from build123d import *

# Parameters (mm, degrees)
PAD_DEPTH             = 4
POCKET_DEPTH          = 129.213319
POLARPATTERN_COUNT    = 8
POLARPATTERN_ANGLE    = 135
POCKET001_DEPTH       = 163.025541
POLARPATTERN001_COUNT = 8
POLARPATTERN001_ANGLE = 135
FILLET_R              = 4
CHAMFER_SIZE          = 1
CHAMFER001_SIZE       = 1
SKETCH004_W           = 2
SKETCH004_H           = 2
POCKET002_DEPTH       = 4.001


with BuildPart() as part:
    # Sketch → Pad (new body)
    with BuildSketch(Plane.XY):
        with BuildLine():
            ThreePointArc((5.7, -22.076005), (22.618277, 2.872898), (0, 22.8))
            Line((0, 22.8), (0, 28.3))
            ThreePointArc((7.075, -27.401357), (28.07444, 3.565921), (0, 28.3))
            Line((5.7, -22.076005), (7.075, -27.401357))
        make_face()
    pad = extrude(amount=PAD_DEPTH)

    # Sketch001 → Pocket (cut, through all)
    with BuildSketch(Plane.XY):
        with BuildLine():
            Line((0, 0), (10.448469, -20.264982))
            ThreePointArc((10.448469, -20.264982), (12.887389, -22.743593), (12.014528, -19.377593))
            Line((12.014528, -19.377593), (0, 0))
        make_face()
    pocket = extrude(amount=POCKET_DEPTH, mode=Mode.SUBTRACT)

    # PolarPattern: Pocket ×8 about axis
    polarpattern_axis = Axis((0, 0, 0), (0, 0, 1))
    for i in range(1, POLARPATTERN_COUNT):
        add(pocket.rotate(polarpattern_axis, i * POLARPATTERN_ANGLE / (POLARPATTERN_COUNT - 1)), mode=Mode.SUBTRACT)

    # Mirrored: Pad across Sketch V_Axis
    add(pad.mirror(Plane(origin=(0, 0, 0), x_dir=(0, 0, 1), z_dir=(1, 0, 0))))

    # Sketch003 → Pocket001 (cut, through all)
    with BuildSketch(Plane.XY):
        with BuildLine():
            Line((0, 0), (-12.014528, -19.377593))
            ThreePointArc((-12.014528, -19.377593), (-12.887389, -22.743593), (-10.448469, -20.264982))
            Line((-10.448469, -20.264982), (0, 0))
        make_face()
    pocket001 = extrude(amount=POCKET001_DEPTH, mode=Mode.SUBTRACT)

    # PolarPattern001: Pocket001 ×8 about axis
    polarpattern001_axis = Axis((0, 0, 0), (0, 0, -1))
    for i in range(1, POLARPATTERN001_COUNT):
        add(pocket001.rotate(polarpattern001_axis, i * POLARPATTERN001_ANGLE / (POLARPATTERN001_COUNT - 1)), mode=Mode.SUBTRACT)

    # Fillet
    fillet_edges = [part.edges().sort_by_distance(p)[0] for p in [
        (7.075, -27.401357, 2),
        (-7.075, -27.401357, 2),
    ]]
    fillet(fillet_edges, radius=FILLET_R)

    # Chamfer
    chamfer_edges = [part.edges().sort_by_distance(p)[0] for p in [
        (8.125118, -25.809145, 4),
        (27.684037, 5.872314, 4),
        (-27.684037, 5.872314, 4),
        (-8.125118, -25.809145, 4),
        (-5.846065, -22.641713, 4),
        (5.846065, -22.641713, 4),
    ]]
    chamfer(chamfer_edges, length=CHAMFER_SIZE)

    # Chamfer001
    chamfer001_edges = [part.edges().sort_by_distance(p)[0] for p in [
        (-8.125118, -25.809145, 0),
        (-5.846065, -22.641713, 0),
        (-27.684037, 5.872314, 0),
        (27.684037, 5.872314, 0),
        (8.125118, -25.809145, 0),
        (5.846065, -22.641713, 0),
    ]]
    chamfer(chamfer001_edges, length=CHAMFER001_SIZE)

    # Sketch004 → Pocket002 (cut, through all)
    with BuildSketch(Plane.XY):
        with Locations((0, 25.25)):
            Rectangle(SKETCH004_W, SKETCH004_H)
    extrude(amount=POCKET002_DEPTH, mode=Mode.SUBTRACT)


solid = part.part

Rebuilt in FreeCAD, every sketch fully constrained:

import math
import FreeCAD as App
import Part
import Sketcher
from FreeCAD import Vector
Q = App.Units.Quantity


def edges_at(feature, points):
    """Names of the edges that pass closest to the given points."""
    edges = feature.Shape.Edges
    near = lambda p: min(range(len(edges)), key=lambda i: edges[i].distToShape(Part.Vertex(*p))[0])
    return sorted({f"Edge{near(p) + 1}" for p in points})

doc = App.newDocument("Part")
body = doc.addObject("PartDesign::Body", "Body")

# Sketch on XY plane
sketch1 = body.newObject("Sketcher::SketchObject", "Sketch")
sketch1.AttachmentSupport = (doc.getObject("XY_Plane"), [""])
sketch1.MapMode = "FlatFace"
sketch1.addGeometry([
    Part.ArcOfCircle(Part.Circle(Vector(0, 0, 0), Vector(0, 0, 1), 23), math.radians(-76), math.radians(90)),
    Part.LineSegment(Vector(6, -22, 0), Vector(7, -27, 0)),
    Part.ArcOfCircle(Part.Circle(Vector(0, 0, 0), Vector(0, 0, 1), 28), math.radians(-76), math.radians(90)),
    Part.LineSegment(Vector(0, 28, 0), Vector(0, 23, 0)),
], False)
sketch1.addConstraint([
    Sketcher.Constraint("Coincident", 0, 1, 1, 1),
    Sketcher.Constraint("Coincident", 1, 2, 2, 1),
    Sketcher.Constraint("Coincident", 2, 2, 3, 1),
    Sketcher.Constraint("Coincident", 3, 2, 0, 2),
    Sketcher.Constraint("Vertical", 3),
    Sketcher.Constraint("Coincident", 0, 3, -1, 1),
    Sketcher.Constraint("Coincident", 2, 3, -1, 1),
    Sketcher.Constraint("PointOnObject", 2, 2, -2),
    Sketcher.Constraint("Radius", 0, Q("22.8 mm")),
    Sketcher.Constraint("Radius", 2, Q("28.3 mm")),
    Sketcher.Constraint("DistanceX", -1, 1, 0, 1, Q("5.7 mm")),
    Sketcher.Constraint("DistanceX", -1, 1, 1, 2, Q("7.075 mm")),
])
pad1 = body.newObject("PartDesign::Pad", "Pad")
pad1.Profile = sketch1
pad1.Length = 4

# Sketch on XY plane
sketch2 = body.newObject("Sketcher::SketchObject", "Sketch001")
sketch2.AttachmentSupport = (doc.getObject("XY_Plane"), [""])
sketch2.MapMode = "FlatFace"
sketch2.addGeometry([
    Part.LineSegment(Vector(0, 0, 0), Vector(10.4, -20.3, 0)),
    Part.ArcOfCircle(Part.Circle(Vector(12, -21.2, 0), Vector(0, 0, 1), 1.8), math.radians(150), math.radians(450)),
    Part.LineSegment(Vector(12, -19.4, 0), Vector(0, 0, 0)),
], False)
sketch2.addConstraint([
    Sketcher.Constraint("Coincident", 0, 2, 1, 1),
    Sketcher.Constraint("Coincident", 1, 2, 2, 1),
    Sketcher.Constraint("Coincident", 2, 2, 0, 1),
    Sketcher.Constraint("Coincident", 2, 2, -1, 1),
    Sketcher.Constraint("Equal", 0, 2),
    Sketcher.Constraint("Radius", 1, Q("1.8 mm")),
    Sketcher.Constraint("DistanceX", -1, 1, 1, 3, Q("12 mm")),
    Sketcher.Constraint("Distance", 0, Q("22.8 mm")),
    Sketcher.Constraint("DistanceX", -1, 1, 0, 2, Q("10.448469 mm")),
])
pocket1 = body.newObject("PartDesign::Pocket", "Pocket")
pocket1.Profile = sketch2
pocket1.Type = "ThroughAll"
pocket1.Reversed = True
doc.recompute()

polarpattern = body.newObject("PartDesign::PolarPattern", "PolarPattern")
polarpattern.Originals = [pocket1]
polarpattern.Axis = (doc.getObject("Z_Axis"), [""])
polarpattern.Angle = 135
polarpattern.Occurrences = 8
body.Tip = polarpattern
doc.recompute()

mirrored = body.newObject("PartDesign::Mirrored", "Mirrored")
mirrored.Originals = [pad1]
mirrored.MirrorPlane = (doc.getObject("YZ_Plane"), [""])
body.Tip = mirrored

# Sketch on XY plane
sketch3 = body.newObject("Sketcher::SketchObject", "Sketch002")
sketch3.AttachmentSupport = (doc.getObject("XY_Plane"), [""])
sketch3.MapMode = "FlatFace"
sketch3.addGeometry([
    Part.LineSegment(Vector(0, 0, 0), Vector(-12, -19.4, 0)),
    Part.ArcOfCircle(Part.Circle(Vector(-12, -21.2, 0), Vector(0, 0, 1), 1.8), math.radians(90), math.radians(390)),
    Part.LineSegment(Vector(-10.4, -20.3, 0), Vector(0, 0, 0)),
], False)
sketch3.addConstraint([
    Sketcher.Constraint("Coincident", 0, 2, 1, 1),
    Sketcher.Constraint("Coincident", 1, 2, 2, 1),
    Sketcher.Constraint("Coincident", 2, 2, 0, 1),
    Sketcher.Constraint("Coincident", 2, 2, -1, 1),
    Sketcher.Constraint("Equal", 0, 2),
    Sketcher.Constraint("Radius", 1, Q("1.8 mm")),
    Sketcher.Constraint("DistanceX", 1, 3, -1, 1, Q("12 mm")),
    Sketcher.Constraint("Distance", 0, Q("22.8 mm")),
    Sketcher.Constraint("DistanceX", 1, 2, -1, 1, Q("10.448469 mm")),
])
pocket2 = body.newObject("PartDesign::Pocket", "Pocket001")
pocket2.Profile = sketch3
pocket2.Type = "ThroughAll"
pocket2.Reversed = True
doc.recompute()

polarpattern2 = body.newObject("PartDesign::PolarPattern", "PolarPattern001")
polarpattern2.Originals = [pocket2]
polarpattern2.Axis = (doc.getObject("Z_Axis"), [""])
polarpattern2.Angle = 135
polarpattern2.Occurrences = 8
polarpattern2.Reversed = True
body.Tip = polarpattern2
doc.recompute()

fillet = body.newObject("PartDesign::Fillet", "Fillet")
fillet.Base = (polarpattern2, edges_at(polarpattern2, [(7.075, -27.401, 2), (-7.075, -27.401, 2)]))
fillet.Radius = 4
doc.recompute()

chamfer = body.newObject("PartDesign::Chamfer", "Chamfer")
chamfer.Base = (fillet, edges_at(fillet, [
    (8.125, -25.809, 4),
    (27.684, 5.872, 4),
    (-27.684, 5.872, 4),
    (-8.125, -25.809, 4),
    (-5.846, -22.642, 4),
    (5.846, -22.642, 4),
]))
chamfer.Size = 1
doc.recompute()

chamfer2 = body.newObject("PartDesign::Chamfer", "Chamfer001")
chamfer2.Base = (chamfer, edges_at(chamfer, [
    (-8.125, -25.809, 0),
    (-5.846, -22.642, 0),
    (-27.684, 5.872, 0),
    (27.684, 5.872, 0),
    (8.125, -25.809, 0),
    (5.846, -22.642, 0),
]))
chamfer2.Size = 1

# Sketch on XY plane
sketch4 = body.newObject("Sketcher::SketchObject", "Sketch003")
sketch4.AttachmentSupport = (doc.getObject("XY_Plane"), [""])
sketch4.MapMode = "FlatFace"
sketch4.addGeometry([
    Part.LineSegment(Vector(-1, 26.2, 0), Vector(-1, 24.2, 0)),
    Part.LineSegment(Vector(-1, 24.2, 0), Vector(1, 24.2, 0)),
    Part.LineSegment(Vector(1, 24.2, 0), Vector(1, 26.2, 0)),
    Part.LineSegment(Vector(1, 26.2, 0), Vector(-1, 26.2, 0)),
], False)
sketch4.addConstraint([
    Sketcher.Constraint("Coincident", 0, 2, 1, 1),
    Sketcher.Constraint("Coincident", 1, 2, 2, 1),
    Sketcher.Constraint("Coincident", 2, 2, 3, 1),
    Sketcher.Constraint("Coincident", 3, 2, 0, 1),
    Sketcher.Constraint("Vertical", 0),
    Sketcher.Constraint("Horizontal", 1),
    Sketcher.Constraint("Vertical", 2),
    Sketcher.Constraint("Horizontal", 3),
    Sketcher.Constraint("Equal", 3, 0),
    Sketcher.Constraint("DistanceX", 1, 1, 1, 2, Q("2 mm")),
    Sketcher.Constraint("DistanceX", 0, 2, -1, 1, Q("1 mm")),
    Sketcher.Constraint("DistanceY", -1, 1, 0, 2, Q("24.25 mm")),
])
pocket3 = body.newObject("PartDesign::Pocket", "Pocket002")
pocket3.Profile = sketch4
pocket3.Type = "ThroughAll"
pocket3.Reversed = True

doc.recompute()
